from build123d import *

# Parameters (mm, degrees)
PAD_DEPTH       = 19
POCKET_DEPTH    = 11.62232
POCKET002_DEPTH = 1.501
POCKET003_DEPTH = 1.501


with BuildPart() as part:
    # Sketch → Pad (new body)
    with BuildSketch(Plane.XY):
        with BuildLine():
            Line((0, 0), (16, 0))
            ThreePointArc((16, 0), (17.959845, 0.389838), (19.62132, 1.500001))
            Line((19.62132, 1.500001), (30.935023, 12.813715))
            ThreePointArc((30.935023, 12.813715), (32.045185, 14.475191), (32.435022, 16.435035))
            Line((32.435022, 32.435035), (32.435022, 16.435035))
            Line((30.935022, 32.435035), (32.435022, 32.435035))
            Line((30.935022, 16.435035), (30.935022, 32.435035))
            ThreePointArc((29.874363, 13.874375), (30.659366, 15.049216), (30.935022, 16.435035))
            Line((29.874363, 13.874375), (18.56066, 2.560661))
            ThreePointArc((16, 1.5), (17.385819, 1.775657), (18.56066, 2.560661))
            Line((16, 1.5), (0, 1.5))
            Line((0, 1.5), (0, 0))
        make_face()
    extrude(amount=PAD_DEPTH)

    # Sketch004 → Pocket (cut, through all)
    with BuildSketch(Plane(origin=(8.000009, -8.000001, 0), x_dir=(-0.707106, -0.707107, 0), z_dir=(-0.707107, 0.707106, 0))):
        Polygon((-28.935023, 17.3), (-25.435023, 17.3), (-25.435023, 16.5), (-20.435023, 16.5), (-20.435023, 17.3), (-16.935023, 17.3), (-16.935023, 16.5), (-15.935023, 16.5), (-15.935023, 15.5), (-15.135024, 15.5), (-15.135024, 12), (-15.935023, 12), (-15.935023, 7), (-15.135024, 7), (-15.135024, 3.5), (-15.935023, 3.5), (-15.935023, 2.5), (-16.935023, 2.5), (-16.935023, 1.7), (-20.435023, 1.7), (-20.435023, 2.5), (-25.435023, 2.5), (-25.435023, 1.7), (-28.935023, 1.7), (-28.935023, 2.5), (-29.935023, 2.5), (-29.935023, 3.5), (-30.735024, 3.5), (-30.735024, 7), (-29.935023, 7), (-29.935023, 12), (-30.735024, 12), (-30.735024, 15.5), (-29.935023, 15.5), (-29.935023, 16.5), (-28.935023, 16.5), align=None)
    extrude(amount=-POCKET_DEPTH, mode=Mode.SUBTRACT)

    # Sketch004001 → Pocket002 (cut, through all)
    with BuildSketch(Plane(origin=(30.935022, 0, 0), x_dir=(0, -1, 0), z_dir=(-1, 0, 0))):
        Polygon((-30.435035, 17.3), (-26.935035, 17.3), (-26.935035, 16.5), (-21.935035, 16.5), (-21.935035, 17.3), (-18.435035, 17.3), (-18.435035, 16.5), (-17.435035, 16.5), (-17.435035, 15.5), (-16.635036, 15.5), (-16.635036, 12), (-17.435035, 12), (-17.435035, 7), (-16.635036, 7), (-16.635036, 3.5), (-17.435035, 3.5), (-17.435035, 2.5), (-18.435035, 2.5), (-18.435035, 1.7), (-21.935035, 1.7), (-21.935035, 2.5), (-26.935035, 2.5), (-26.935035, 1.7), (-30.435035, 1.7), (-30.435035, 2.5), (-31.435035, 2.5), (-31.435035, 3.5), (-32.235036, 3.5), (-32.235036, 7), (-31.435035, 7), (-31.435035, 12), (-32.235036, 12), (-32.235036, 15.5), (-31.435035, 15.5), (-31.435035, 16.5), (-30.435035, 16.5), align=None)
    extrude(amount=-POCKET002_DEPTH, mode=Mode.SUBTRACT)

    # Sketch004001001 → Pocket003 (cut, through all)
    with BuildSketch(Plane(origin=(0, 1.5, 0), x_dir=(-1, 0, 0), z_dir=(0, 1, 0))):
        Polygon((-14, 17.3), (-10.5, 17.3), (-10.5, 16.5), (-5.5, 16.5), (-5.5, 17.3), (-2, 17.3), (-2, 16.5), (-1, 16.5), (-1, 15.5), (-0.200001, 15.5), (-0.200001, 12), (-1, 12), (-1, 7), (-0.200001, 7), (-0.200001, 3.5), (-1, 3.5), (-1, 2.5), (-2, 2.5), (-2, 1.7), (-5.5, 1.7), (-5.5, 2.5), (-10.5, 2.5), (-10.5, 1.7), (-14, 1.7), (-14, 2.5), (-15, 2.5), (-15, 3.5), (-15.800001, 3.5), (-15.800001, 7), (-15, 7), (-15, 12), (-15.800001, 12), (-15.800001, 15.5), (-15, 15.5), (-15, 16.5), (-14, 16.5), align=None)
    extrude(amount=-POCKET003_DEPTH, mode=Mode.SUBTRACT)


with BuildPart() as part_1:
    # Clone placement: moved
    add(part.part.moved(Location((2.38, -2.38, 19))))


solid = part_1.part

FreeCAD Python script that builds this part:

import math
import FreeCAD as App
import Part
import Sketcher

V = App.Vector
Q = App.Units.Quantity

doc = App.newDocument("Part")
body = doc.addObject("PartDesign::Body", "Body")

# Sketch on XY plane
sketch1 = body.newObject("Sketcher::SketchObject", "Sketch")
sketch1.AttachmentSupport = (doc.getObject("XY_Plane"), [""])
sketch1.MapMode = "FlatFace"
sketch1.addGeometry(Part.LineSegment(V(0, 0, 0), V(16, 0, 0)), False)
sketch1.addGeometry(Part.ArcOfCircle(Part.Circle(V(15.999999, 5.121319, 0), V(0, 0, 1), 5.121319), math.radians(-89.999989), math.radians(-44.99998)), False)
sketch1.addGeometry(Part.LineSegment(V(19.62132, 1.500001, 0), V(30.935023, 12.813715, 0)), False)
sketch1.addGeometry(Part.ArcOfCircle(Part.Circle(V(27.3137, 16.435035, 0), V(0, 0, 1), 5.121322), math.radians(-44.999976), math.radians(-0.000001)), False)
sketch1.addGeometry(Part.LineSegment(V(32.435022, 16.435035, 0), V(32.435022, 32.435035, 0)), False)
sketch1.addGeometry(Part.LineSegment(V(32.435022, 32.435035, 0), V(30.935022, 32.435035, 0)), False)
sketch1.addGeometry(Part.LineSegment(V(30.935022, 32.435035, 0), V(30.935022, 16.435035, 0)), False)
sketch1.addGeometry(Part.ArcOfCircle(Part.Circle(V(27.313702, 16.435034, 0), V(0, 0, 1), 3.62132), math.radians(-44.999978), math.radians(0.00002)), False)
sketch1.addGeometry(Part.LineSegment(V(29.874363, 13.874375, 0), V(18.56066, 2.560661, 0)), False)
sketch1.addGeometry(Part.ArcOfCircle(Part.Circle(V(15.999998, 5.121322, 0), V(0, 0, 1), 3.621322), math.radians(-89.999976), math.radians(-44.99999)), False)
sketch1.addGeometry(Part.LineSegment(V(16, 1.5, 0), V(0, 1.5, 0)), False)
sketch1.addGeometry(Part.LineSegment(V(0, 1.5, 0), V(0, 0, 0)), False)
sketch1.addConstraint(Sketcher.Constraint("Tangent", 0, 2, 1, 1))
sketch1.addConstraint(Sketcher.Constraint("Tangent", 1, 2, 2, 1))
sketch1.addConstraint(Sketcher.Constraint("Tangent", 2, 2, 3, 1))
sketch1.addConstraint(Sketcher.Constraint("Tangent", 3, 2, 4, 1))
sketch1.addConstraint(Sketcher.Constraint("Coincident", 4, 2, 5, 1))
sketch1.addConstraint(Sketcher.Constraint("Coincident", 5, 2, 6, 1))
sketch1.addConstraint(Sketcher.Constraint("Tangent", 6, 2, 7, 2))
sketch1.addConstraint(Sketcher.Constraint("Tangent", 7, 1, 8, 1))
sketch1.addConstraint(Sketcher.Constraint("Tangent", 8, 2, 9, 2))
sketch1.addConstraint(Sketcher.Constraint("Tangent", 9, 1, 10, 1))
sketch1.addConstraint(Sketcher.Constraint("Coincident", 10, 2, 11, 1))
sketch1.addConstraint(Sketcher.Constraint("Coincident", 11, 2, 0, 1))
sketch1.addConstraint(Sketcher.Constraint("Horizontal", 0))
sketch1.addConstraint(Sketcher.Constraint("Vertical", 4))
sketch1.addConstraint(Sketcher.Constraint("Horizontal", 5))
sketch1.addConstraint(Sketcher.Constraint("Vertical", 6))
sketch1.addConstraint(Sketcher.Constraint("Horizontal", 10))
sketch1.addConstraint(Sketcher.Constraint("Vertical", 11))
sketch1.addConstraint(Sketcher.Constraint("Coincident", 11, 2, -1, 1))
sketch1.addConstraint(Sketcher.Constraint("Coincident", 7, 3, 3, 3))
sketch1.addConstraint(Sketcher.Constraint("Coincident", 9, 3, 1, 3))
sketch1.addConstraint(Sketcher.Constraint("Equal", 7, 9))
sketch1.addConstraint(Sketcher.Constraint("Parallel", 2, 8))
sketch1.addConstraint(Sketcher.Constraint("Horizontal", 1, 2, 9, 1))
sketch1.addConstraint(Sketcher.Constraint("Vertical", 2, 2, 5, 2))
sketch1.addConstraint(Sketcher.Constraint("Equal", 10, 4))
sketch1.addConstraint(Sketcher.Constraint("DistanceX", 0, 1, 0, 2, Q("16 mm")))
sketch1.addConstraint(Sketcher.Constraint("Distance", 2, Q("16 mm")))
sketch1.addConstraint(Sketcher.Constraint("DistanceX", 5, 2, 5, 1, Q("1.5 mm")))
pad1 = body.newObject("PartDesign::Pad", "Pad")
pad1.Profile = sketch1
pad1.Length = 19

# Sketch on an angled plane
sketch2 = body.newObject("Sketcher::SketchObject", "Sketch001")
sketch2.Placement = App.Placement(V(8.000009, -8.000001, 0), App.Rotation(V(-0.707106281, -0.707107281, 0), V(0, 0, 0.999999999), V(-0.707107281, 0.707106281, 0), "ZXY"))
sketch2.addGeometry(Part.LineSegment(V(-25.435023, 17.3, 0), V(-28.935023, 17.3, 0)), False)
sketch2.addGeometry(Part.LineSegment(V(-28.935023, 17.3, 0), V(-28.935023, 16.5, 0)), False)
sketch2.addGeometry(Part.LineSegment(V(-28.935023, 16.5, 0), V(-29.935023, 16.5, 0)), False)
sketch2.addGeometry(Part.LineSegment(V(-29.935023, 16.5, 0), V(-29.935023, 15.5, 0)), False)
sketch2.addGeometry(Part.LineSegment(V(-29.935023, 15.5, 0), V(-30.735024, 15.5, 0)), False)
sketch2.addGeometry(Part.LineSegment(V(-30.735024, 15.5, 0), V(-30.735024, 12, 0)), False)
sketch2.addGeometry(Part.LineSegment(V(-30.735024, 12, 0), V(-29.935023, 12, 0)), False)
sketch2.addGeometry(Part.LineSegment(V(-29.935023, 12, 0), V(-29.935023, 7, 0)), False)
sketch2.addGeometry(Part.LineSegment(V(-29.935023, 7, 0), V(-30.735024, 7, 0)), False)
sketch2.addGeometry(Part.LineSegment(V(-30.735024, 7, 0), V(-30.735024, 3.5, 0)), False)
sketch2.addGeometry(Part.LineSegment(V(-30.735024, 3.5, 0), V(-29.935023, 3.5, 0)), False)
sketch2.addGeometry(Part.LineSegment(V(-29.935023, 3.5, 0), V(-29.935023, 2.5, 0)), False)
sketch2.addGeometry(Part.LineSegment(V(-29.935023, 2.5, 0), V(-28.935023, 2.5, 0)), False)
sketch2.addGeometry(Part.LineSegment(V(-28.935023, 2.5, 0), V(-28.935023, 1.7, 0)), False)
sketch2.addGeometry(Part.LineSegment(V(-28.935023, 1.7, 0), V(-25.435023, 1.7, 0)), False)
sketch2.addGeometry(Part.LineSegment(V(-25.435023, 1.7, 0), V(-25.435023, 2.5, 0)), False)
sketch2.addGeometry(Part.LineSegment(V(-25.435023, 2.5, 0), V(-20.435023, 2.5, 0)), False)
sketch2.addGeometry(Part.LineSegment(V(-20.435023, 2.5, 0), V(-20.435023, 1.7, 0)), False)
sketch2.addGeometry(Part.LineSegment(V(-20.435023, 1.7, 0), V(-16.935023, 1.7, 0)), False)
sketch2.addGeometry(Part.LineSegment(V(-16.935023, 1.7, 0), V(-16.935023, 2.5, 0)), False)
sketch2.addGeometry(Part.LineSegment(V(-16.935023, 2.5, 0), V(-15.935023, 2.5, 0)), False)
sketch2.addGeometry(Part.LineSegment(V(-15.935023, 2.5, 0), V(-15.935023, 3.5, 0)), False)
sketch2.addGeometry(Part.LineSegment(V(-15.935023, 3.5, 0), V(-15.135024, 3.5, 0)), False)
sketch2.addGeometry(Part.LineSegment(V(-15.135024, 3.5, 0), V(-15.135024, 7, 0)), False)
sketch2.addGeometry(Part.LineSegment(V(-15.135024, 7, 0), V(-15.935023, 7, 0)), False)
sketch2.addGeometry(Part.LineSegment(V(-15.935023, 7, 0), V(-15.935023, 12, 0)), False)
sketch2.addGeometry(Part.LineSegment(V(-15.935023, 12, 0), V(-15.135024, 12, 0)), False)
sketch2.addGeometry(Part.LineSegment(V(-15.135024, 12, 0), V(-15.135024, 15.5, 0)), False)
sketch2.addGeometry(Part.LineSegment(V(-15.135024, 15.5, 0), V(-15.935023, 15.5, 0)), False)
sketch2.addGeometry(Part.LineSegment(V(-15.935023, 15.5, 0), V(-15.935023, 16.5, 0)), False)
sketch2.addGeometry(Part.LineSegment(V(-15.935023, 16.5, 0), V(-16.935023, 16.5, 0)), False)
sketch2.addGeometry(Part.LineSegment(V(-16.935023, 16.5, 0), V(-16.935023, 17.3, 0)), False)
sketch2.addGeometry(Part.LineSegment(V(-16.935023, 17.3, 0), V(-20.435023, 17.3, 0)), False)
sketch2.addGeometry(Part.LineSegment(V(-20.435023, 17.3, 0), V(-20.435023, 16.5, 0)), False)
sketch2.addGeometry(Part.LineSegment(V(-20.435023, 16.5, 0), V(-25.435023, 16.5, 0)), False)
sketch2.addGeometry(Part.LineSegment(V(-25.435023, 16.5, 0), V(-25.435023, 17.3, 0)), False)
sketch2.addConstraint(Sketcher.Constraint("Coincident", 0, 2, 1, 1))
sketch2.addConstraint(Sketcher.Constraint("Coincident", 1, 2, 2, 1))
sketch2.addConstraint(Sketcher.Constraint("Coincident", 2, 2, 3, 1))
sketch2.addConstraint(Sketcher.Constraint("Coincident", 3, 2, 4, 1))
sketch2.addConstraint(Sketcher.Constraint("Coincident", 4, 2, 5, 1))
sketch2.addConstraint(Sketcher.Constraint("Coincident", 5, 2, 6, 1))
sketch2.addConstraint(Sketcher.Constraint("Coincident", 6, 2, 7, 1))
sketch2.addConstraint(Sketcher.Constraint("Coincident", 7, 2, 8, 1))
sketch2.addConstraint(Sketcher.Constraint("Coincident", 8, 2, 9, 1))
sketch2.addConstraint(Sketcher.Constraint("Coincident", 9, 2, 10, 1))
sketch2.addConstraint(Sketcher.Constraint("Coincident", 10, 2, 11, 1))
sketch2.addConstraint(Sketcher.Constraint("Coincident", 11, 2, 12, 1))
sketch2.addConstraint(Sketcher.Constraint("Coincident", 12, 2, 13, 1))
sketch2.addConstraint(Sketcher.Constraint("Coincident", 13, 2, 14, 1))
sketch2.addConstraint(Sketcher.Constraint("Coincident", 14, 2, 15, 1))
sketch2.addConstraint(Sketcher.Constraint("Coincident", 15, 2, 16, 1))
sketch2.addConstraint(Sketcher.Constraint("Coincident", 16, 2, 17, 1))
sketch2.addConstraint(Sketcher.Constraint("Coincident", 17, 2, 18, 1))
sketch2.addConstraint(Sketcher.Constraint("Coincident", 18, 2, 19, 1))
sketch2.addConstraint(Sketcher.Constraint("Coincident", 19, 2, 20, 1))
sketch2.addConstraint(Sketcher.Constraint("Coincident", 20, 2, 21, 1))
sketch2.addConstraint(Sketcher.Constraint("Coincident", 21, 2, 22, 1))
sketch2.addConstraint(Sketcher.Constraint("Coincident", 22, 2, 23, 1))
sketch2.addConstraint(Sketcher.Constraint("Coincident", 23, 2, 24, 1))
sketch2.addConstraint(Sketcher.Constraint("Coincident", 24, 2, 25, 1))
sketch2.addConstraint(Sketcher.Constraint("Coincident", 25, 2, 26, 1))
sketch2.addConstraint(Sketcher.Constraint("Coincident", 26, 2, 27, 1))
sketch2.addConstraint(Sketcher.Constraint("Coincident", 27, 2, 28, 1))
sketch2.addConstraint(Sketcher.Constraint("Coincident", 28, 2, 29, 1))
sketch2.addConstraint(Sketcher.Constraint("Coincident", 29, 2, 30, 1))
sketch2.addConstraint(Sketcher.Constraint("Coincident", 30, 2, 31, 1))
sketch2.addConstraint(Sketcher.Constraint("Coincident", 31, 2, 32, 1))
sketch2.addConstraint(Sketcher.Constraint("Coincident", 32, 2, 33, 1))
sketch2.addConstraint(Sketcher.Constraint("Coincident", 33, 2, 34, 1))
sketch2.addConstraint(Sketcher.Constraint("Coincident", 34, 2, 35, 1))
sketch2.addConstraint(Sketcher.Constraint("Coincident", 35, 2, 0, 1))
sketch2.addConstraint(Sketcher.Constraint("Horizontal", 0))
sketch2.addConstraint(Sketcher.Constraint("Vertical", 1))
sketch2.addConstraint(Sketcher.Constraint("Horizontal", 2))
sketch2.addConstraint(Sketcher.Constraint("Vertical", 3))
sketch2.addConstraint(Sketcher.Constraint("Horizontal", 4))
sketch2.addConstraint(Sketcher.Constraint("Vertical", 5))
sketch2.addConstraint(Sketcher.Constraint("Horizontal", 6))
sketch2.addConstraint(Sketcher.Constraint("Vertical", 7))
sketch2.addConstraint(Sketcher.Constraint("Horizontal", 8))
sketch2.addConstraint(Sketcher.Constraint("Vertical", 9))
sketch2.addConstraint(Sketcher.Constraint("Horizontal", 10))
sketch2.addConstraint(Sketcher.Constraint("Vertical", 11))
sketch2.addConstraint(Sketcher.Constraint("Horizontal", 12))
sketch2.addConstraint(Sketcher.Constraint("Vertical", 13))
sketch2.addConstraint(Sketcher.Constraint("Horizontal", 14))
sketch2.addConstraint(Sketcher.Constraint("Vertical", 15))
sketch2.addConstraint(Sketcher.Constraint("Horizontal", 16))
sketch2.addConstraint(Sketcher.Constraint("Vertical", 17))
sketch2.addConstraint(Sketcher.Constraint("Horizontal", 18))
sketch2.addConstraint(Sketcher.Constraint("Vertical", 19))
sketch2.addConstraint(Sketcher.Constraint("Horizontal", 20))
sketch2.addConstraint(Sketcher.Constraint("Vertical", 21))
sketch2.addConstraint(Sketcher.Constraint("Horizontal", 22))
sketch2.addConstraint(Sketcher.Constraint("Vertical", 23))
sketch2.addConstraint(Sketcher.Constraint("Horizontal", 24))
sketch2.addConstraint(Sketcher.Constraint("Vertical", 25))
sketch2.addConstraint(Sketcher.Constraint("Horizontal", 26))
sketch2.addConstraint(Sketcher.Constraint("Vertical", 27))
sketch2.addConstraint(Sketcher.Constraint("Horizontal", 28))
sketch2.addConstraint(Sketcher.Constraint("Vertical", 29))
sketch2.addConstraint(Sketcher.Constraint("Horizontal", 30))
sketch2.addConstraint(Sketcher.Constraint("Vertical", 31))
sketch2.addConstraint(Sketcher.Constraint("Horizontal", 32))
sketch2.addConstraint(Sketcher.Constraint("Vertical", 33))
sketch2.addConstraint(Sketcher.Constraint("Horizontal", 34))
sketch2.addConstraint(Sketcher.Constraint("Vertical", 35))
sketch2.addConstraint(Sketcher.Constraint("Horizontal", 12, 2, 15, 2))
sketch2.addConstraint(Sketcher.Constraint("Horizontal", 14, 2, 17, 2))
sketch2.addConstraint(Sketcher.Constraint("Horizontal", 16, 2, 19, 2))
sketch2.addConstraint(Sketcher.Constraint("Horizontal", 10, 2, 21, 2))
sketch2.addConstraint(Sketcher.Constraint("Horizontal", 8, 2, 23, 2))
sketch2.addConstraint(Sketcher.Constraint("Horizontal", 6, 2, 25, 2))
sketch2.addConstraint(Sketcher.Constraint("Horizontal", 4, 2, 27, 2))
sketch2.addConstraint(Sketcher.Constraint("Horizontal", 2, 2, 29, 2))
sketch2.addConstraint(Sketcher.Constraint("Horizontal", 0, 2, 31, 2))
sketch2.addConstraint(Sketcher.Constraint("Horizontal", 30, 2, 33, 2))
sketch2.addConstraint(Sketcher.Constraint("Vertical", 3, 2, 6, 2))
sketch2.addConstraint(Sketcher.Constraint("Vertical", 5, 2, 8, 2))
sketch2.addConstraint(Sketcher.Constraint("Vertical", 7, 2, 10, 2))
sketch2.addConstraint(Sketcher.Constraint("Vertical", 1, 2, 12, 2))
sketch2.addConstraint(Sketcher.Constraint("Vertical", 21, 2, 24, 2))
sketch2.addConstraint(Sketcher.Constraint("Vertical", 23, 2, 26, 2))
sketch2.addConstraint(Sketcher.Constraint("Vertical", 25, 2, 28, 2))
sketch2.addConstraint(Sketcher.Constraint("Vertical", 19, 2, 30, 2))
sketch2.addConstraint(Sketcher.Constraint("Vertical", 17, 2, 32, 2))
sketch2.addConstraint(Sketcher.Constraint("Vertical", 15, 2, 34, 2))
sketch2.addConstraint(Sketcher.Constraint("Equal", 14, 18))
sketch2.addConstraint(Sketcher.Constraint("Equal", 12, 20))
sketch2.addConstraint(Sketcher.Constraint("Equal", 28, 1))
sketch2.addConstraint(Sketcher.Constraint("Equal", 30, 3))
sketch2.addConstraint(Sketcher.Constraint("Equal", 32, 5))
sketch2.addConstraint(Sketcher.Constraint("Equal", 34, 7))
sketch2.addConstraint(Sketcher.Constraint("Equal", 5, 9))
sketch2.addConstraint(Sketcher.Constraint("Equal", 3, 11))
sketch2.addConstraint(Sketcher.Constraint("Equal", 1, 13))
sketch2.addConstraint(Sketcher.Constraint("Equal", 10, 15))
sketch2.addConstraint(Sketcher.Constraint("DistanceX", 2, 2, 2, 1, Q("1 mm")))
sketch2.addConstraint(Sketcher.Constraint("DistanceX", 16, 1, 16, 2, Q("5 mm")))
sketch2.addConstraint(Sketcher.Constraint("DistanceX", 0, 2, 0, 1, Q("3.5 mm")))
sketch2.addConstraint(Sketcher.Constraint("DistanceX", 4, 2, 4, 1, Q("0.800001 mm")))
sketch2.addConstraint(Sketcher.Constraint("DistanceY", -1, 1, 5, 2, Q("12 mm")))
sketch2.addConstraint(Sketcher.Constraint("DistanceX", 0, 2, -1, 1, Q("28.935023 mm")))
pocket1 = body.newObject("PartDesign::Pocket", "Pocket")
pocket1.Profile = sketch2
pocket1.Type = "ThroughAll"

# Sketch on YZ plane
sketch3 = body.newObject("Sketcher::SketchObject", "Sketch002")
sketch3.AttachmentSupport = (doc.getObject("YZ_Plane"), [""])
sketch3.MapMode = "FlatFace"
sketch3.AttachmentOffset = App.Placement(V(0, 0, 30.935022), App.Rotation())
sketch3.addGeometry(Part.LineSegment(V(26.935035, 17.3, 0), V(30.435035, 17.3, 0)), False)
sketch3.addGeometry(Part.LineSegment(V(30.435035, 17.3, 0), V(30.435035, 16.5, 0)), False)
sketch3.addGeometry(Part.LineSegment(V(30.435035, 16.5, 0), V(31.435035, 16.5, 0)), False)
sketch3.addGeometry(Part.LineSegment(V(31.435035, 16.5, 0), V(31.435035, 15.5, 0)), False)
sketch3.addGeometry(Part.LineSegment(V(31.435035, 15.5, 0), V(32.235036, 15.5, 0)), False)
sketch3.addGeometry(Part.LineSegment(V(32.235036, 15.5, 0), V(32.235036, 12, 0)), False)
sketch3.addGeometry(Part.LineSegment(V(32.235036, 12, 0), V(31.435035, 12, 0)), False)
sketch3.addGeometry(Part.LineSegment(V(31.435035, 12, 0), V(31.435035, 7, 0)), False)
sketch3.addGeometry(Part.LineSegment(V(31.435035, 7, 0), V(32.235036, 7, 0)), False)
sketch3.addGeometry(Part.LineSegment(V(32.235036, 7, 0), V(32.235036, 3.5, 0)), False)
sketch3.addGeometry(Part.LineSegment(V(32.235036, 3.5, 0), V(31.435035, 3.5, 0)), False)
sketch3.addGeometry(Part.LineSegment(V(31.435035, 3.5, 0), V(31.435035, 2.5, 0)), False)
sketch3.addGeometry(Part.LineSegment(V(31.435035, 2.5, 0), V(30.435035, 2.5, 0)), False)
sketch3.addGeometry(Part.LineSegment(V(30.435035, 2.5, 0), V(30.435035, 1.7, 0)), False)
sketch3.addGeometry(Part.LineSegment(V(30.435035, 1.7, 0), V(26.935035, 1.7, 0)), False)
sketch3.addGeometry(Part.LineSegment(V(26.935035, 1.7, 0), V(26.935035, 2.5, 0)), False)
sketch3.addGeometry(Part.LineSegment(V(26.935035, 2.5, 0), V(21.935035, 2.5, 0)), False)
sketch3.addGeometry(Part.LineSegment(V(21.935035, 2.5, 0), V(21.935035, 1.7, 0)), False)
sketch3.addGeometry(Part.LineSegment(V(21.935035, 1.7, 0), V(18.435035, 1.7, 0)), False)
sketch3.addGeometry(Part.LineSegment(V(18.435035, 1.7, 0), V(18.435035, 2.5, 0)), False)
sketch3.addGeometry(Part.LineSegment(V(18.435035, 2.5, 0), V(17.435035, 2.5, 0)), False)
sketch3.addGeometry(Part.LineSegment(V(17.435035, 2.5, 0), V(17.435035, 3.5, 0)), False)
sketch3.addGeometry(Part.LineSegment(V(17.435035, 3.5, 0), V(16.635036, 3.5, 0)), False)
sketch3.addGeometry(Part.LineSegment(V(16.635036, 3.5, 0), V(16.635036, 7, 0)), False)
sketch3.addGeometry(Part.LineSegment(V(16.635036, 7, 0), V(17.435035, 7, 0)), False)
sketch3.addGeometry(Part.LineSegment(V(17.435035, 7, 0), V(17.435035, 12, 0)), False)
sketch3.addGeometry(Part.LineSegment(V(17.435035, 12, 0), V(16.635036, 12, 0)), False)
sketch3.addGeometry(Part.LineSegment(V(16.635036, 12, 0), V(16.635036, 15.5, 0)), False)
sketch3.addGeometry(Part.LineSegment(V(16.635036, 15.5, 0), V(17.435035, 15.5, 0)), False)
sketch3.addGeometry(Part.LineSegment(V(17.435035, 15.5, 0), V(17.435035, 16.5, 0)), False)
sketch3.addGeometry(Part.LineSegment(V(17.435035, 16.5, 0), V(18.435035, 16.5, 0)), False)
sketch3.addGeometry(Part.LineSegment(V(18.435035, 16.5, 0), V(18.435035, 17.3, 0)), False)
sketch3.addGeometry(Part.LineSegment(V(18.435035, 17.3, 0), V(21.935035, 17.3, 0)), False)
sketch3.addGeometry(Part.LineSegment(V(21.935035, 17.3, 0), V(21.935035, 16.5, 0)), False)
sketch3.addGeometry(Part.LineSegment(V(21.935035, 16.5, 0), V(26.935035, 16.5, 0)), False)
sketch3.addGeometry(Part.LineSegment(V(26.935035, 16.5, 0), V(26.935035, 17.3, 0)), False)
sketch3.addConstraint(Sketcher.Constraint("Coincident", 0, 2, 1, 1))
sketch3.addConstraint(Sketcher.Constraint("Coincident", 1, 2, 2, 1))
sketch3.addConstraint(Sketcher.Constraint("Coincident", 2, 2, 3, 1))
sketch3.addConstraint(Sketcher.Constraint("Coincident", 3, 2, 4, 1))
sketch3.addConstraint(Sketcher.Constraint("Coincident", 4, 2, 5, 1))
sketch3.addConstraint(Sketcher.Constraint("Coincident", 5, 2, 6, 1))
sketch3.addConstraint(Sketcher.Constraint("Coincident", 6, 2, 7, 1))
sketch3.addConstraint(Sketcher.Constraint("Coincident", 7, 2, 8, 1))
sketch3.addConstraint(Sketcher.Constraint("Coincident", 8, 2, 9, 1))
sketch3.addConstraint(Sketcher.Constraint("Coincident", 9, 2, 10, 1))
sketch3.addConstraint(Sketcher.Constraint("Coincident", 10, 2, 11, 1))
sketch3.addConstraint(Sketcher.Constraint("Coincident", 11, 2, 12, 1))
sketch3.addConstraint(Sketcher.Constraint("Coincident", 12, 2, 13, 1))
sketch3.addConstraint(Sketcher.Constraint("Coincident", 13, 2, 14, 1))
sketch3.addConstraint(Sketcher.Constraint("Coincident", 14, 2, 15, 1))
sketch3.addConstraint(Sketcher.Constraint("Coincident", 15, 2, 16, 1))
sketch3.addConstraint(Sketcher.Constraint("Coincident", 16, 2, 17, 1))
sketch3.addConstraint(Sketcher.Constraint("Coincident", 17, 2, 18, 1))
sketch3.addConstraint(Sketcher.Constraint("Coincident", 18, 2, 19, 1))
sketch3.addConstraint(Sketcher.Constraint("Coincident", 19, 2, 20, 1))
sketch3.addConstraint(Sketcher.Constraint("Coincident", 20, 2, 21, 1))
sketch3.addConstraint(Sketcher.Constraint("Coincident", 21, 2, 22, 1))
sketch3.addConstraint(Sketcher.Constraint("Coincident", 22, 2, 23, 1))
sketch3.addConstraint(Sketcher.Constraint("Coincident", 23, 2, 24, 1))
sketch3.addConstraint(Sketcher.Constraint("Coincident", 24, 2, 25, 1))
sketch3.addConstraint(Sketcher.Constraint("Coincident", 25, 2, 26, 1))
sketch3.addConstraint(Sketcher.Constraint("Coincident", 26, 2, 27, 1))
sketch3.addConstraint(Sketcher.Constraint("Coincident", 27, 2, 28, 1))
sketch3.addConstraint(Sketcher.Constraint("Coincident", 28, 2, 29, 1))
sketch3.addConstraint(Sketcher.Constraint("Coincident", 29, 2, 30, 1))
sketch3.addConstraint(Sketcher.Constraint("Coincident", 30, 2, 31, 1))
sketch3.addConstraint(Sketcher.Constraint("Coincident", 31, 2, 32, 1))
sketch3.addConstraint(Sketcher.Constraint("Coincident", 32, 2, 33, 1))
sketch3.addConstraint(Sketcher.Constraint("Coincident", 33, 2, 34, 1))
sketch3.addConstraint(Sketcher.Constraint("Coincident", 34, 2, 35, 1))
sketch3.addConstraint(Sketcher.Constraint("Coincident", 35, 2, 0, 1))
sketch3.addConstraint(Sketcher.Constraint("Horizontal", 0))
sketch3.addConstraint(Sketcher.Constraint("Vertical", 1))
sketch3.addConstraint(Sketcher.Constraint("Horizontal", 2))
sketch3.addConstraint(Sketcher.Constraint("Vertical", 3))
sketch3.addConstraint(Sketcher.Constraint("Horizontal", 4))
sketch3.addConstraint(Sketcher.Constraint("Vertical", 5))
sketch3.addConstraint(Sketcher.Constraint("Horizontal", 6))
sketch3.addConstraint(Sketcher.Constraint("Vertical", 7))
sketch3.addConstraint(Sketcher.Constraint("Horizontal", 8))
sketch3.addConstraint(Sketcher.Constraint("Vertical", 9))
sketch3.addConstraint(Sketcher.Constraint("Horizontal", 10))
sketch3.addConstraint(Sketcher.Constraint("Vertical", 11))
sketch3.addConstraint(Sketcher.Constraint("Horizontal", 12))
sketch3.addConstraint(Sketcher.Constraint("Vertical", 13))
sketch3.addConstraint(Sketcher.Constraint("Horizontal", 14))
sketch3.addConstraint(Sketcher.Constraint("Vertical", 15))
sketch3.addConstraint(Sketcher.Constraint("Horizontal", 16))
sketch3.addConstraint(Sketcher.Constraint("Vertical", 17))
sketch3.addConstraint(Sketcher.Constraint("Horizontal", 18))
sketch3.addConstraint(Sketcher.Constraint("Vertical", 19))
sketch3.addConstraint(Sketcher.Constraint("Horizontal", 20))
sketch3.addConstraint(Sketcher.Constraint("Vertical", 21))
sketch3.addConstraint(Sketcher.Constraint("Horizontal", 22))
sketch3.addConstraint(Sketcher.Constraint("Vertical", 23))
sketch3.addConstraint(Sketcher.Constraint("Horizontal", 24))
sketch3.addConstraint(Sketcher.Constraint("Vertical", 25))
sketch3.addConstraint(Sketcher.Constraint("Horizontal", 26))
sketch3.addConstraint(Sketcher.Constraint("Vertical", 27))
sketch3.addConstraint(Sketcher.Constraint("Horizontal", 28))
sketch3.addConstraint(Sketcher.Constraint("Vertical", 29))
sketch3.addConstraint(Sketcher.Constraint("Horizontal", 30))
sketch3.addConstraint(Sketcher.Constraint("Vertical", 31))
sketch3.addConstraint(Sketcher.Constraint("Horizontal", 32))
sketch3.addConstraint(Sketcher.Constraint("Vertical", 33))
sketch3.addConstraint(Sketcher.Constraint("Horizontal", 34))
sketch3.addConstraint(Sketcher.Constraint("Vertical", 35))
sketch3.addConstraint(Sketcher.Constraint("Horizontal", 12, 2, 15, 2))
sketch3.addConstraint(Sketcher.Constraint("Horizontal", 14, 2, 17, 2))
sketch3.addConstraint(Sketcher.Constraint("Horizontal", 16, 2, 19, 2))
sketch3.addConstraint(Sketcher.Constraint("Horizontal", 10, 2, 21, 2))
sketch3.addConstraint(Sketcher.Constraint("Horizontal", 8, 2, 23, 2))
sketch3.addConstraint(Sketcher.Constraint("Horizontal", 6, 2, 25, 2))
sketch3.addConstraint(Sketcher.Constraint("Horizontal", 4, 2, 27, 2))
sketch3.addConstraint(Sketcher.Constraint("Horizontal", 2, 2, 29, 2))
sketch3.addConstraint(Sketcher.Constraint("Horizontal", 0, 2, 31, 2))
sketch3.addConstraint(Sketcher.Constraint("Horizontal", 30, 2, 33, 2))
sketch3.addConstraint(Sketcher.Constraint("Vertical", 3, 2, 6, 2))
sketch3.addConstraint(Sketcher.Constraint("Vertical", 5, 2, 8, 2))
sketch3.addConstraint(Sketcher.Constraint("Vertical", 7, 2, 10, 2))
sketch3.addConstraint(Sketcher.Constraint("Vertical", 1, 2, 12, 2))
sketch3.addConstraint(Sketcher.Constraint("Vertical", 21, 2, 24, 2))
sketch3.addConstraint(Sketcher.Constraint("Vertical", 23, 2, 26, 2))
sketch3.addConstraint(Sketcher.Constraint("Vertical", 25, 2, 28, 2))
sketch3.addConstraint(Sketcher.Constraint("Vertical", 19, 2, 30, 2))
sketch3.addConstraint(Sketcher.Constraint("Vertical", 17, 2, 32, 2))
sketch3.addConstraint(Sketcher.Constraint("Vertical", 15, 2, 34, 2))
sketch3.addConstraint(Sketcher.Constraint("Equal", 14, 18))
sketch3.addConstraint(Sketcher.Constraint("Equal", 12, 20))
sketch3.addConstraint(Sketcher.Constraint("Equal", 28, 1))
sketch3.addConstraint(Sketcher.Constraint("Equal", 30, 3))
sketch3.addConstraint(Sketcher.Constraint("Equal", 32, 5))
sketch3.addConstraint(Sketcher.Constraint("Equal", 34, 7))
sketch3.addConstraint(Sketcher.Constraint("Equal", 5, 9))
sketch3.addConstraint(Sketcher.Constraint("Equal", 3, 11))
sketch3.addConstraint(Sketcher.Constraint("Equal", 1, 13))
sketch3.addConstraint(Sketcher.Constraint("Equal", 10, 15))
sketch3.addConstraint(Sketcher.Constraint("DistanceX", 2, 1, 2, 2, Q("1 mm")))
sketch3.addConstraint(Sketcher.Constraint("DistanceX", 16, 2, 16, 1, Q("5 mm")))
sketch3.addConstraint(Sketcher.Constraint("DistanceX", 0, 1, 0, 2, Q("3.5 mm")))
sketch3.addConstraint(Sketcher.Constraint("DistanceX", 4, 1, 4, 2, Q("0.800001 mm")))
sketch3.addConstraint(Sketcher.Constraint("DistanceY", -1, 1, 5, 2, Q("12 mm")))
sketch3.addConstraint(Sketcher.Constraint("DistanceX", -1, 1, 0, 2, Q("30.435035 mm")))
pocket2 = body.newObject("PartDesign::Pocket", "Pocket001")
pocket2.Profile = sketch3
pocket2.Type = "ThroughAll"
pocket2.Reversed = True

# Sketch on XZ plane
sketch4 = body.newObject("Sketcher::SketchObject", "Sketch003")
sketch4.AttachmentSupport = (doc.getObject("XZ_Plane"), [""])
sketch4.MapMode = "FlatFace"
sketch4.AttachmentOffset = App.Placement(V(0, 0, -1.5), App.Rotation())
sketch4.addGeometry(Part.LineSegment(V(10.5, 17.3, 0), V(14, 17.3, 0)), False)
sketch4.addGeometry(Part.LineSegment(V(14, 17.3, 0), V(14, 16.5, 0)), False)
sketch4.addGeometry(Part.LineSegment(V(14, 16.5, 0), V(15, 16.5, 0)), False)
sketch4.addGeometry(Part.LineSegment(V(15, 16.5, 0), V(15, 15.5, 0)), False)
sketch4.addGeometry(Part.LineSegment(V(15, 15.5, 0), V(15.800001, 15.5, 0)), False)
sketch4.addGeometry(Part.LineSegment(V(15.800001, 15.5, 0), V(15.800001, 12, 0)), False)
sketch4.addGeometry(Part.LineSegment(V(15.800001, 12, 0), V(15, 12, 0)), False)
sketch4.addGeometry(Part.LineSegment(V(15, 12, 0), V(15, 7, 0)), False)
sketch4.addGeometry(Part.LineSegment(V(15, 7, 0), V(15.800001, 7, 0)), False)
sketch4.addGeometry(Part.LineSegment(V(15.800001, 7, 0), V(15.800001, 3.5, 0)), False)
sketch4.addGeometry(Part.LineSegment(V(15.800001, 3.5, 0), V(15, 3.5, 0)), False)
sketch4.addGeometry(Part.LineSegment(V(15, 3.5, 0), V(15, 2.5, 0)), False)
sketch4.addGeometry(Part.LineSegment(V(15, 2.5, 0), V(14, 2.5, 0)), False)
sketch4.addGeometry(Part.LineSegment(V(14, 2.5, 0), V(14, 1.7, 0)), False)
sketch4.addGeometry(Part.LineSegment(V(14, 1.7, 0), V(10.5, 1.7, 0)), False)
sketch4.addGeometry(Part.LineSegment(V(10.5, 1.7, 0), V(10.5, 2.5, 0)), False)
sketch4.addGeometry(Part.LineSegment(V(10.5, 2.5, 0), V(5.5, 2.5, 0)), False)
sketch4.addGeometry(Part.LineSegment(V(5.5, 2.5, 0), V(5.5, 1.7, 0)), False)
sketch4.addGeometry(Part.LineSegment(V(5.5, 1.7, 0), V(2, 1.7, 0)), False)
sketch4.addGeometry(Part.LineSegment(V(2, 1.7, 0), V(2, 2.5, 0)), False)
sketch4.addGeometry(Part.LineSegment(V(2, 2.5, 0), V(1, 2.5, 0)), False)
sketch4.addGeometry(Part.LineSegment(V(1, 2.5, 0), V(1, 3.5, 0)), False)
sketch4.addGeometry(Part.LineSegment(V(1, 3.5, 0), V(0.200001, 3.5, 0)), False)
sketch4.addGeometry(Part.LineSegment(V(0.200001, 3.5, 0), V(0.200001, 7, 0)), False)
sketch4.addGeometry(Part.LineSegment(V(0.200001, 7, 0), V(1, 7, 0)), False)
sketch4.addGeometry(Part.LineSegment(V(1, 7, 0), V(1, 12, 0)), False)
sketch4.addGeometry(Part.LineSegment(V(1, 12, 0), V(0.200001, 12, 0)), False)
sketch4.addGeometry(Part.LineSegment(V(0.200001, 12, 0), V(0.200001, 15.5, 0)), False)
sketch4.addGeometry(Part.LineSegment(V(0.200001, 15.5, 0), V(1, 15.5, 0)), False)
sketch4.addGeometry(Part.LineSegment(V(1, 15.5, 0), V(1, 16.5, 0)), False)
sketch4.addGeometry(Part.LineSegment(V(1, 16.5, 0), V(2, 16.5, 0)), False)
sketch4.addGeometry(Part.LineSegment(V(2, 16.5, 0), V(2, 17.3, 0)), False)
sketch4.addGeometry(Part.LineSegment(V(2, 17.3, 0), V(5.5, 17.3, 0)), False)
sketch4.addGeometry(Part.LineSegment(V(5.5, 17.3, 0), V(5.5, 16.5, 0)), False)
sketch4.addGeometry(Part.LineSegment(V(5.5, 16.5, 0), V(10.5, 16.5, 0)), False)
sketch4.addGeometry(Part.LineSegment(V(10.5, 16.5, 0), V(10.5, 17.3, 0)), False)
sketch4.addConstraint(Sketcher.Constraint("Coincident", 0, 2, 1, 1))
sketch4.addConstraint(Sketcher.Constraint("Coincident", 1, 2, 2, 1))
sketch4.addConstraint(Sketcher.Constraint("Coincident", 2, 2, 3, 1))
sketch4.addConstraint(Sketcher.Constraint("Coincident", 3, 2, 4, 1))
sketch4.addConstraint(Sketcher.Constraint("Coincident", 4, 2, 5, 1))
sketch4.addConstraint(Sketcher.Constraint("Coincident", 5, 2, 6, 1))
sketch4.addConstraint(Sketcher.Constraint("Coincident", 6, 2, 7, 1))
sketch4.addConstraint(Sketcher.Constraint("Coincident", 7, 2, 8, 1))
sketch4.addConstraint(Sketcher.Constraint("Coincident", 8, 2, 9, 1))
sketch4.addConstraint(Sketcher.Constraint("Coincident", 9, 2, 10, 1))
sketch4.addConstraint(Sketcher.Constraint("Coincident", 10, 2, 11, 1))
sketch4.addConstraint(Sketcher.Constraint("Coincident", 11, 2, 12, 1))
sketch4.addConstraint(Sketcher.Constraint("Coincident", 12, 2, 13, 1))
sketch4.addConstraint(Sketcher.Constraint("Coincident", 13, 2, 14, 1))
sketch4.addConstraint(Sketcher.Constraint("Coincident", 14, 2, 15, 1))
sketch4.addConstraint(Sketcher.Constraint("Coincident", 15, 2, 16, 1))
sketch4.addConstraint(Sketcher.Constraint("Coincident", 16, 2, 17, 1))
sketch4.addConstraint(Sketcher.Constraint("Coincident", 17, 2, 18, 1))
sketch4.addConstraint(Sketcher.Constraint("Coincident", 18, 2, 19, 1))
sketch4.addConstraint(Sketcher.Constraint("Coincident", 19, 2, 20, 1))
sketch4.addConstraint(Sketcher.Constraint("Coincident", 20, 2, 21, 1))
sketch4.addConstraint(Sketcher.Constraint("Coincident", 21, 2, 22, 1))
sketch4.addConstraint(Sketcher.Constraint("Coincident", 22, 2, 23, 1))
sketch4.addConstraint(Sketcher.Constraint("Coincident", 23, 2, 24, 1))
sketch4.addConstraint(Sketcher.Constraint("Coincident", 24, 2, 25, 1))
sketch4.addConstraint(Sketcher.Constraint("Coincident", 25, 2, 26, 1))
sketch4.addConstraint(Sketcher.Constraint("Coincident", 26, 2, 27, 1))
sketch4.addConstraint(Sketcher.Constraint("Coincident", 27, 2, 28, 1))
sketch4.addConstraint(Sketcher.Constraint("Coincident", 28, 2, 29, 1))
sketch4.addConstraint(Sketcher.Constraint("Coincident", 29, 2, 30, 1))
sketch4.addConstraint(Sketcher.Constraint("Coincident", 30, 2, 31, 1))
sketch4.addConstraint(Sketcher.Constraint("Coincident", 31, 2, 32, 1))
sketch4.addConstraint(Sketcher.Constraint("Coincident", 32, 2, 33, 1))
sketch4.addConstraint(Sketcher.Constraint("Coincident", 33, 2, 34, 1))
sketch4.addConstraint(Sketcher.Constraint("Coincident", 34, 2, 35, 1))
sketch4.addConstraint(Sketcher.Constraint("Coincident", 35, 2, 0, 1))
sketch4.addConstraint(Sketcher.Constraint("Horizontal", 0))
sketch4.addConstraint(Sketcher.Constraint("Vertical", 1))
sketch4.addConstraint(Sketcher.Constraint("Horizontal", 2))
sketch4.addConstraint(Sketcher.Constraint("Vertical", 3))
sketch4.addConstraint(Sketcher.Constraint("Horizontal", 4))
sketch4.addConstraint(Sketcher.Constraint("Vertical", 5))
sketch4.addConstraint(Sketcher.Constraint("Horizontal", 6))
sketch4.addConstraint(Sketcher.Constraint("Vertical", 7))
sketch4.addConstraint(Sketcher.Constraint("Horizontal", 8))
sketch4.addConstraint(Sketcher.Constraint("Vertical", 9))
sketch4.addConstraint(Sketcher.Constraint("Horizontal", 10))
sketch4.addConstraint(Sketcher.Constraint("Vertical", 11))
sketch4.addConstraint(Sketcher.Constraint("Horizontal", 12))
sketch4.addConstraint(Sketcher.Constraint("Vertical", 13))
sketch4.addConstraint(Sketcher.Constraint("Horizontal", 14))
sketch4.addConstraint(Sketcher.Constraint("Vertical", 15))
sketch4.addConstraint(Sketcher.Constraint("Horizontal", 16))
sketch4.addConstraint(Sketcher.Constraint("Vertical", 17))
sketch4.addConstraint(Sketcher.Constraint("Horizontal", 18))
sketch4.addConstraint(Sketcher.Constraint("Vertical", 19))
sketch4.addConstraint(Sketcher.Constraint("Horizontal", 20))
sketch4.addConstraint(Sketcher.Constraint("Vertical", 21))
sketch4.addConstraint(Sketcher.Constraint("Horizontal", 22))
sketch4.addConstraint(Sketcher.Constraint("Vertical", 23))
sketch4.addConstraint(Sketcher.Constraint("Horizontal", 24))
sketch4.addConstraint(Sketcher.Constraint("Vertical", 25))
sketch4.addConstraint(Sketcher.Constraint("Horizontal", 26))
sketch4.addConstraint(Sketcher.Constraint("Vertical", 27))
sketch4.addConstraint(Sketcher.Constraint("Horizontal", 28))
sketch4.addConstraint(Sketcher.Constraint("Vertical", 29))
sketch4.addConstraint(Sketcher.Constraint("Horizontal", 30))
sketch4.addConstraint(Sketcher.Constraint("Vertical", 31))
sketch4.addConstraint(Sketcher.Constraint("Horizontal", 32))
sketch4.addConstraint(Sketcher.Constraint("Vertical", 33))
sketch4.addConstraint(Sketcher.Constraint("Horizontal", 34))
sketch4.addConstraint(Sketcher.Constraint("Vertical", 35))
sketch4.addConstraint(Sketcher.Constraint("Horizontal", 12, 2, 15, 2))
sketch4.addConstraint(Sketcher.Constraint("Horizontal", 14, 2, 17, 2))
sketch4.addConstraint(Sketcher.Constraint("Horizontal", 16, 2, 19, 2))
sketch4.addConstraint(Sketcher.Constraint("Horizontal", 10, 2, 21, 2))
sketch4.addConstraint(Sketcher.Constraint("Horizontal", 8, 2, 23, 2))
sketch4.addConstraint(Sketcher.Constraint("Horizontal", 6, 2, 25, 2))
sketch4.addConstraint(Sketcher.Constraint("Horizontal", 4, 2, 27, 2))
sketch4.addConstraint(Sketcher.Constraint("Horizontal", 2, 2, 29, 2))
sketch4.addConstraint(Sketcher.Constraint("Horizontal", 0, 2, 31, 2))
sketch4.addConstraint(Sketcher.Constraint("Horizontal", 30, 2, 33, 2))
sketch4.addConstraint(Sketcher.Constraint("Vertical", 3, 2, 6, 2))
sketch4.addConstraint(Sketcher.Constraint("Vertical", 5, 2, 8, 2))
sketch4.addConstraint(Sketcher.Constraint("Vertical", 7, 2, 10, 2))
sketch4.addConstraint(Sketcher.Constraint("Vertical", 1, 2, 12, 2))
sketch4.addConstraint(Sketcher.Constraint("Vertical", 21, 2, 24, 2))
sketch4.addConstraint(Sketcher.Constraint("Vertical", 23, 2, 26, 2))
sketch4.addConstraint(Sketcher.Constraint("Vertical", 25, 2, 28, 2))
sketch4.addConstraint(Sketcher.Constraint("Vertical", 19, 2, 30, 2))
sketch4.addConstraint(Sketcher.Constraint("Vertical", 17, 2, 32, 2))
sketch4.addConstraint(Sketcher.Constraint("Vertical", 15, 2, 34, 2))
sketch4.addConstraint(Sketcher.Constraint("Equal", 14, 18))
sketch4.addConstraint(Sketcher.Constraint("Equal", 12, 20))
sketch4.addConstraint(Sketcher.Constraint("Equal", 10, 22))
sketch4.addConstraint(Sketcher.Constraint("Equal", 28, 1))
sketch4.addConstraint(Sketcher.Constraint("Equal", 30, 3))
sketch4.addConstraint(Sketcher.Constraint("Equal", 32, 5))
sketch4.addConstraint(Sketcher.Constraint("Equal", 34, 7))
sketch4.addConstraint(Sketcher.Constraint("Equal", 5, 9))
sketch4.addConstraint(Sketcher.Constraint("Equal", 3, 11))
sketch4.addConstraint(Sketcher.Constraint("Equal", 1, 13))
sketch4.addConstraint(Sketcher.Constraint("DistanceX", 2, 1, 2, 2, Q("1 mm")))
sketch4.addConstraint(Sketcher.Constraint("DistanceX", 16, 2, 16, 1, Q("5 mm")))
sketch4.addConstraint(Sketcher.Constraint("DistanceX", 0, 1, 0, 2, Q("3.5 mm")))
sketch4.addConstraint(Sketcher.Constraint("DistanceX", 4, 1, 4, 2, Q("0.800001 mm")))
sketch4.addConstraint(Sketcher.Constraint("DistanceX", -1, 1, 0, 2, Q("14 mm")))
sketch4.addConstraint(Sketcher.Constraint("DistanceY", -1, 1, 5, 2, Q("12 mm")))
pocket3 = body.newObject("PartDesign::Pocket", "Pocket002")
pocket3.Profile = sketch4
pocket3.Type = "ThroughAll"
pocket3.Reversed = True
body2 = doc.addObject("PartDesign::Body", "Body001")
doc.recompute()

body.Placement = App.Placement(V(2.38, -2.38, 19), App.Rotation(V(0, 0, 1), 0))
boolean = body2.newObject("PartDesign::Boolean", "Boolean")
boolean.Type = "Fuse"
boolean.addObjects([body])

doc.recompute()
